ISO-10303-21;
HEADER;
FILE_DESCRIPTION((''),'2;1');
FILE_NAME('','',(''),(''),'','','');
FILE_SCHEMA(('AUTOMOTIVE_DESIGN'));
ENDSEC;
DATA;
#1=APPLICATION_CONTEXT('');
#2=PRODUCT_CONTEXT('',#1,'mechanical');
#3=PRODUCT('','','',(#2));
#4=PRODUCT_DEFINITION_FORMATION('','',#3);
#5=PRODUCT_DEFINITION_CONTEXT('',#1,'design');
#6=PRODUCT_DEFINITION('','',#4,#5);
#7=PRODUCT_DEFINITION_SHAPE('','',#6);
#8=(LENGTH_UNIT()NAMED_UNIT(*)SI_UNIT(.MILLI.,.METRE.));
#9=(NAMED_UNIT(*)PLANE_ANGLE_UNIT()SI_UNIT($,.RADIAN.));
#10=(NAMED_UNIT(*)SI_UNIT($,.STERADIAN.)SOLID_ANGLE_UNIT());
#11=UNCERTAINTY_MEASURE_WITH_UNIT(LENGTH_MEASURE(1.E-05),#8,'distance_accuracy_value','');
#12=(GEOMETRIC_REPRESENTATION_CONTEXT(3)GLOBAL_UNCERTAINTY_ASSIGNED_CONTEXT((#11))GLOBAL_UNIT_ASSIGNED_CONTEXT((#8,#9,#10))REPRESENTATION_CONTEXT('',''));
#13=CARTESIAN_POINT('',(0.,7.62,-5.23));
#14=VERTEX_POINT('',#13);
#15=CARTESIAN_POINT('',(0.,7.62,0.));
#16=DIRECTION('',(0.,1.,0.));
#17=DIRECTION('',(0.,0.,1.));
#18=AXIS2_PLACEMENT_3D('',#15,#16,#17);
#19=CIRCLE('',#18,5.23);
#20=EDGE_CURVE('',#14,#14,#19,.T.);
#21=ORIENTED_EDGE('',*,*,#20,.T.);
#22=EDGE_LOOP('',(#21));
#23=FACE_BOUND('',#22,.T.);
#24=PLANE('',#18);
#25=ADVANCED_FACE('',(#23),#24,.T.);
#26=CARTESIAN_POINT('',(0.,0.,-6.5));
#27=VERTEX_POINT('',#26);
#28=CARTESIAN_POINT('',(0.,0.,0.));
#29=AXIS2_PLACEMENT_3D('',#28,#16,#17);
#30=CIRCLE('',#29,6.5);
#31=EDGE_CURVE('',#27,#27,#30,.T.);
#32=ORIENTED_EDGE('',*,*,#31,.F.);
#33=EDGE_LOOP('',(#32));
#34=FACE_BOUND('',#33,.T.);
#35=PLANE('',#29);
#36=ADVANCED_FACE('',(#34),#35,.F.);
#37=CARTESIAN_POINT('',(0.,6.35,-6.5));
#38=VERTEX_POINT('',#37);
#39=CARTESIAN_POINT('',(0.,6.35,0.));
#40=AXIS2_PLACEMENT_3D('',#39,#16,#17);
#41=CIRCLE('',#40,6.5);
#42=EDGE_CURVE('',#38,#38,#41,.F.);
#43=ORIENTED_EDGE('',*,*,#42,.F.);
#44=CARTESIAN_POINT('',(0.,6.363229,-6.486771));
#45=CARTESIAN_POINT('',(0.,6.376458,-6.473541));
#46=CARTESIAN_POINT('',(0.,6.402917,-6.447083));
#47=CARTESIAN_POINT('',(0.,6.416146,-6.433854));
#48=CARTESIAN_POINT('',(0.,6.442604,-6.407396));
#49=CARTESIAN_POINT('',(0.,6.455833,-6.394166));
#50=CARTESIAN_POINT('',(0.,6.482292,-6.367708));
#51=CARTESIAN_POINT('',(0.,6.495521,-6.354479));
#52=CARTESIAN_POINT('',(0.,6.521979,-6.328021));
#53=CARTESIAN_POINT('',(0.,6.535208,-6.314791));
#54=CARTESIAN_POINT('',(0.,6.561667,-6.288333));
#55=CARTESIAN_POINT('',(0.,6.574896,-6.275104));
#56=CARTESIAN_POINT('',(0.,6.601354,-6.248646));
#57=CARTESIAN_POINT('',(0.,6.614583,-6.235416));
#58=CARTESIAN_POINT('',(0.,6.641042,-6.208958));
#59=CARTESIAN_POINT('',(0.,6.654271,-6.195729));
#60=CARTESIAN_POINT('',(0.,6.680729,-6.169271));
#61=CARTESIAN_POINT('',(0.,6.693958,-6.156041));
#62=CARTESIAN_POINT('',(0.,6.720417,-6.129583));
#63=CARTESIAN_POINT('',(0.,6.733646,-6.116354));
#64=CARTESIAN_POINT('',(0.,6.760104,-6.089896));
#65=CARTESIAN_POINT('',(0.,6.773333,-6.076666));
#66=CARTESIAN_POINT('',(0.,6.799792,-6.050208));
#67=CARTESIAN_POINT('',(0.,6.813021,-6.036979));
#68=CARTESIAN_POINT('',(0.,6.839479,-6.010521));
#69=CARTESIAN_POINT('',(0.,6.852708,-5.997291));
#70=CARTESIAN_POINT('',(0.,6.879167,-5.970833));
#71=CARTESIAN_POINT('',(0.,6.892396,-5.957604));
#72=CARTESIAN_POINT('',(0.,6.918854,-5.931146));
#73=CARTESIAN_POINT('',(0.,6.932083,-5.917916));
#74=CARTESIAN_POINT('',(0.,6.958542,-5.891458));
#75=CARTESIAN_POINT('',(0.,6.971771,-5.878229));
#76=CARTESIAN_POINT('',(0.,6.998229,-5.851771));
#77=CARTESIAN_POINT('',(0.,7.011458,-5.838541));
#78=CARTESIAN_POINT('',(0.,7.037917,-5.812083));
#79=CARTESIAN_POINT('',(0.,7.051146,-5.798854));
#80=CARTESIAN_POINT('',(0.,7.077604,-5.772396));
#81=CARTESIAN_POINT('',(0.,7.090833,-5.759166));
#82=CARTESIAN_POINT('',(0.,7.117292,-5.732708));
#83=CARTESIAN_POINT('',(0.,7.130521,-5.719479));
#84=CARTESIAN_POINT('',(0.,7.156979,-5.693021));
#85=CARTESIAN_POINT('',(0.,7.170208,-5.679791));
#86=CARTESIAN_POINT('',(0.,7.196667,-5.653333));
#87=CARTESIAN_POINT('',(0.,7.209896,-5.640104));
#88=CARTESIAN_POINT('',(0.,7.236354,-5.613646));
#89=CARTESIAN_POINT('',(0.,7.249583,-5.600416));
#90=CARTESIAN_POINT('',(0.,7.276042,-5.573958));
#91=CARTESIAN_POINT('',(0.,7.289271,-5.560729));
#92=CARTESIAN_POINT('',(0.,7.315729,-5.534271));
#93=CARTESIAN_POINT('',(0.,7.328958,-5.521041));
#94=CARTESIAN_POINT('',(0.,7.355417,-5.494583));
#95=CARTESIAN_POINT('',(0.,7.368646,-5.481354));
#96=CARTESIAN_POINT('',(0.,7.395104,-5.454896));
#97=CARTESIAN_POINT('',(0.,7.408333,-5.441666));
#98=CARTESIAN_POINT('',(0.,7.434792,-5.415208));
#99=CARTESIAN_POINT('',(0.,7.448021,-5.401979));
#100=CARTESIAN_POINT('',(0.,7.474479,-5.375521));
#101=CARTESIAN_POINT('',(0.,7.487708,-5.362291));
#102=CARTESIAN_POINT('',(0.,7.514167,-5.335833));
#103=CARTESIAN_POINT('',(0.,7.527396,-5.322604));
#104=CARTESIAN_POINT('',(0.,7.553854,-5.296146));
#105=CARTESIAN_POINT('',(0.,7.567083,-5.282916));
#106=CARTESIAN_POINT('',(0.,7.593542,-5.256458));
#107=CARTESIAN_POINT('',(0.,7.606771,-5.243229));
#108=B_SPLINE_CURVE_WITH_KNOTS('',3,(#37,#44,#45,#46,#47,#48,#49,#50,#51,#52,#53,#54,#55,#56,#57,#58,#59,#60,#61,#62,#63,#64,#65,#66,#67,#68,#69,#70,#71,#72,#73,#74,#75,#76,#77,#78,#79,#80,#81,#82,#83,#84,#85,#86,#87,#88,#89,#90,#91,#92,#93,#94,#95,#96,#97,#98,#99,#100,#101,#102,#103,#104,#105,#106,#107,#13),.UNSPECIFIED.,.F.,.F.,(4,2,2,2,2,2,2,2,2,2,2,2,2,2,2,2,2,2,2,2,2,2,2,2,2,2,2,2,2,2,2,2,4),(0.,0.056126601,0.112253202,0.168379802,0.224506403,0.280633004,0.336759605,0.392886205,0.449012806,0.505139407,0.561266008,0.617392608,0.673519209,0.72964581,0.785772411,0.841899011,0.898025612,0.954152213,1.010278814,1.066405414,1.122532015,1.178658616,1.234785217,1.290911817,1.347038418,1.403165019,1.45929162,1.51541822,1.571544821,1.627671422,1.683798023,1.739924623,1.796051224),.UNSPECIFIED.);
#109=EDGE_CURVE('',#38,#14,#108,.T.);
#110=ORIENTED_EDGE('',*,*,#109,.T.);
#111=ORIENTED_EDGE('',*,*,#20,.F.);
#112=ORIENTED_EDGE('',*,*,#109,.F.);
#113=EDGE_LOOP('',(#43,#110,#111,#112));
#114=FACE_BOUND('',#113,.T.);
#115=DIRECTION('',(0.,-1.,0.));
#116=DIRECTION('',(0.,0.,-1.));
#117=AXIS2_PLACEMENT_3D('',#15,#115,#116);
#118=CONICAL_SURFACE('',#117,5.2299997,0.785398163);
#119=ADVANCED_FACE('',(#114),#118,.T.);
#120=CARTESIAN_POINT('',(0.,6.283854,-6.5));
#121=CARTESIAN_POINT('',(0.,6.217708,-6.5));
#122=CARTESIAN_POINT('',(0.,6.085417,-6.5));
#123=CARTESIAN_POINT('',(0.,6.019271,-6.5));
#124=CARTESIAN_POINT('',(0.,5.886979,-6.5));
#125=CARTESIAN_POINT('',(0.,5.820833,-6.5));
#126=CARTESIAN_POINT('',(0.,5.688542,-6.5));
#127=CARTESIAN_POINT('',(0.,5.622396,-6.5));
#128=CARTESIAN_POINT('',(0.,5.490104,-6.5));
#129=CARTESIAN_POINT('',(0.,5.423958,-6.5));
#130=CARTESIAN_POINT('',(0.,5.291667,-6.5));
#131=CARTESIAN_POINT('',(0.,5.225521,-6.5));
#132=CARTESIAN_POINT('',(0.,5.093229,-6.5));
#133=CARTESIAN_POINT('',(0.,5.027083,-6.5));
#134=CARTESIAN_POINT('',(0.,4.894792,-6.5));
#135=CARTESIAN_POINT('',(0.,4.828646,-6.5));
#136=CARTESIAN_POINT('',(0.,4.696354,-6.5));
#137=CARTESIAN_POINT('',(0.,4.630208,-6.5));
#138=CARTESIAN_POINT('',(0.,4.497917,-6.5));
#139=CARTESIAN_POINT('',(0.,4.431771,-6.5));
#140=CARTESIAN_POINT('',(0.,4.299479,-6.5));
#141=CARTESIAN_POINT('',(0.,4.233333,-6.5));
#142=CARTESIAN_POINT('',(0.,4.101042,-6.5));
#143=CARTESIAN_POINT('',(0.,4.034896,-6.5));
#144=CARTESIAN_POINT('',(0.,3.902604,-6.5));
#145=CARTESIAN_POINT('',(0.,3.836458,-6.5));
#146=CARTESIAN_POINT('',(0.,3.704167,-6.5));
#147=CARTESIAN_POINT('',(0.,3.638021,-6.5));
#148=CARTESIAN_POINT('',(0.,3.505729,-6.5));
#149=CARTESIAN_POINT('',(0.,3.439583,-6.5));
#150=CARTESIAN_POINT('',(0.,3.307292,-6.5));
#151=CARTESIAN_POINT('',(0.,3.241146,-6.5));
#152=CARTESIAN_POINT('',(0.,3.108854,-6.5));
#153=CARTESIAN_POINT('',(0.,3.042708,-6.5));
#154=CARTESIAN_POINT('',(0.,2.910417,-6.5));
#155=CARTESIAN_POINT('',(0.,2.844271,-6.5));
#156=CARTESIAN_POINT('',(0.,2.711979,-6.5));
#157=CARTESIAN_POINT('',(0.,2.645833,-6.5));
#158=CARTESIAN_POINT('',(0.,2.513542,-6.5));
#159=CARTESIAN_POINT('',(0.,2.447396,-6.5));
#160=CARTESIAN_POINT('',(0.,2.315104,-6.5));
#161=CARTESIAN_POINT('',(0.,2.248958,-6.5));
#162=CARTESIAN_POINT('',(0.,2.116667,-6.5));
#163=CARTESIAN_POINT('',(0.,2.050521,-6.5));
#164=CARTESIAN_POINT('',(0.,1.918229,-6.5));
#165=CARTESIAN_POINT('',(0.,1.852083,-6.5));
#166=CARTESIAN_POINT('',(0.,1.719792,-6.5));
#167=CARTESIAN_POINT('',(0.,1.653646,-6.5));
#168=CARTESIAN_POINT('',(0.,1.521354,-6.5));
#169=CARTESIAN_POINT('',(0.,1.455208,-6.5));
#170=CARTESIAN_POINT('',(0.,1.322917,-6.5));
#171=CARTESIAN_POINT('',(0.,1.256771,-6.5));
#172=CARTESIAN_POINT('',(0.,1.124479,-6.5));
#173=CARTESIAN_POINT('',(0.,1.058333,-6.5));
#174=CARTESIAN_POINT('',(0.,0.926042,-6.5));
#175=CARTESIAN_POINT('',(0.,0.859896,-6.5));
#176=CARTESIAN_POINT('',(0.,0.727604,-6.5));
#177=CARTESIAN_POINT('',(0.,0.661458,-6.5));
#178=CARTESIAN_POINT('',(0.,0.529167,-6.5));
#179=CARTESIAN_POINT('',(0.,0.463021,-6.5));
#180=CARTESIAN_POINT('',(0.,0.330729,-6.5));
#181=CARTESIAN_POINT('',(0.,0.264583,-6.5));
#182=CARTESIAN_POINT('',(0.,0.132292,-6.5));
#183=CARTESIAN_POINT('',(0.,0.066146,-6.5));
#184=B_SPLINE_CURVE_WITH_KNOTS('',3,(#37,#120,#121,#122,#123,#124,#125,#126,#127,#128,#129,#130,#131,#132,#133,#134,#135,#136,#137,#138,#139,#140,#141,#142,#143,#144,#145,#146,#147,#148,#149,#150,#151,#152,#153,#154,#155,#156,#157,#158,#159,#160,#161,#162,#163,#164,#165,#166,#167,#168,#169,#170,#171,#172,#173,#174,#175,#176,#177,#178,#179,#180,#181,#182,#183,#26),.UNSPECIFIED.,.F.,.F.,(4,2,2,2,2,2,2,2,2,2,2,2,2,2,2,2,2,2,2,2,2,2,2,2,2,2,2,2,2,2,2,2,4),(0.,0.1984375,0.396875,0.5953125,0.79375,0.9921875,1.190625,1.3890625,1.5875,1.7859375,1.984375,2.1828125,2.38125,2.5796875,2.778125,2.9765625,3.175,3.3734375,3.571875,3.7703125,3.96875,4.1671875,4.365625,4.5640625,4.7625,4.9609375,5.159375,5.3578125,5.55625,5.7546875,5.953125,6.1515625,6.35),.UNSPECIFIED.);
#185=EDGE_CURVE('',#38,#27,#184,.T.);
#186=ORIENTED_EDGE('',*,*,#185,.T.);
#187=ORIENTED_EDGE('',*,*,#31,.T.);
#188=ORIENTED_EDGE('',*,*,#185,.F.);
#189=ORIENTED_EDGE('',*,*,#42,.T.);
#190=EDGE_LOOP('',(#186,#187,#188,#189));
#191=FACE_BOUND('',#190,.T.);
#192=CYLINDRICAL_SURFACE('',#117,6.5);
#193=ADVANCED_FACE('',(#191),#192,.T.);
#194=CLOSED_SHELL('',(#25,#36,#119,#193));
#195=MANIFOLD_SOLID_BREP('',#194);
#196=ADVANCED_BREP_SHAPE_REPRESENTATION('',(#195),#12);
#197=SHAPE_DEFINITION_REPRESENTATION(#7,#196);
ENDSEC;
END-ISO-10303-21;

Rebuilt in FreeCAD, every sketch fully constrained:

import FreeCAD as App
import Part
import Sketcher
from FreeCAD import Vector
Q = App.Units.Quantity


def edges_at(feature, points):
    """Names of the edges that pass closest to the given points."""
    edges = feature.Shape.Edges
    near = lambda p: min(range(len(edges)), key=lambda i: edges[i].distToShape(Part.Vertex(*p))[0])
    return sorted({f"Edge{near(p) + 1}" for p in points})

doc = App.newDocument("Part")
params = doc.addObject("Spreadsheet::Sheet", "Params")
for row, (alias, value) in enumerate([
    ("pad1_length", "0.3 in"),
    ("chamfer_size", "0.05 in"),
], start=1):
    params.set(f"A{row}", alias)
    params.set(f"B{row}", "=" + value)
    params.setAlias(f"B{row}", alias)

body = doc.addObject("PartDesign::Body", "Body")

# Sketch on XZ plane
sketch1 = body.newObject("Sketcher::SketchObject", "Sketch")
sketch1.AttachmentSupport = (doc.getObject("XZ_Plane"), [""])
sketch1.MapMode = "FlatFace"
sketch1.addGeometry(Part.Circle(Vector(0, 0, 0), Vector(0, 0, 1), 6), False)
sketch1.addConstraint([
    Sketcher.Constraint("Coincident", 0, 3, -1, 1),
    Sketcher.Constraint("Diameter", 0, Q("12.999999 mm")),
])
pad1 = body.newObject("PartDesign::Pad", "Pad")
pad1.Profile = sketch1
pad1.setExpression("Length", "Params.pad1_length")
pad1.Reversed = True
doc.recompute()

chamfer = body.newObject("PartDesign::Chamfer", "Chamfer")
chamfer.Base = (pad1, edges_at(pad1, [(0, 7.62, 6.5)]))
chamfer.setExpression("Size", "Params.chamfer_size")

doc.recompute()
